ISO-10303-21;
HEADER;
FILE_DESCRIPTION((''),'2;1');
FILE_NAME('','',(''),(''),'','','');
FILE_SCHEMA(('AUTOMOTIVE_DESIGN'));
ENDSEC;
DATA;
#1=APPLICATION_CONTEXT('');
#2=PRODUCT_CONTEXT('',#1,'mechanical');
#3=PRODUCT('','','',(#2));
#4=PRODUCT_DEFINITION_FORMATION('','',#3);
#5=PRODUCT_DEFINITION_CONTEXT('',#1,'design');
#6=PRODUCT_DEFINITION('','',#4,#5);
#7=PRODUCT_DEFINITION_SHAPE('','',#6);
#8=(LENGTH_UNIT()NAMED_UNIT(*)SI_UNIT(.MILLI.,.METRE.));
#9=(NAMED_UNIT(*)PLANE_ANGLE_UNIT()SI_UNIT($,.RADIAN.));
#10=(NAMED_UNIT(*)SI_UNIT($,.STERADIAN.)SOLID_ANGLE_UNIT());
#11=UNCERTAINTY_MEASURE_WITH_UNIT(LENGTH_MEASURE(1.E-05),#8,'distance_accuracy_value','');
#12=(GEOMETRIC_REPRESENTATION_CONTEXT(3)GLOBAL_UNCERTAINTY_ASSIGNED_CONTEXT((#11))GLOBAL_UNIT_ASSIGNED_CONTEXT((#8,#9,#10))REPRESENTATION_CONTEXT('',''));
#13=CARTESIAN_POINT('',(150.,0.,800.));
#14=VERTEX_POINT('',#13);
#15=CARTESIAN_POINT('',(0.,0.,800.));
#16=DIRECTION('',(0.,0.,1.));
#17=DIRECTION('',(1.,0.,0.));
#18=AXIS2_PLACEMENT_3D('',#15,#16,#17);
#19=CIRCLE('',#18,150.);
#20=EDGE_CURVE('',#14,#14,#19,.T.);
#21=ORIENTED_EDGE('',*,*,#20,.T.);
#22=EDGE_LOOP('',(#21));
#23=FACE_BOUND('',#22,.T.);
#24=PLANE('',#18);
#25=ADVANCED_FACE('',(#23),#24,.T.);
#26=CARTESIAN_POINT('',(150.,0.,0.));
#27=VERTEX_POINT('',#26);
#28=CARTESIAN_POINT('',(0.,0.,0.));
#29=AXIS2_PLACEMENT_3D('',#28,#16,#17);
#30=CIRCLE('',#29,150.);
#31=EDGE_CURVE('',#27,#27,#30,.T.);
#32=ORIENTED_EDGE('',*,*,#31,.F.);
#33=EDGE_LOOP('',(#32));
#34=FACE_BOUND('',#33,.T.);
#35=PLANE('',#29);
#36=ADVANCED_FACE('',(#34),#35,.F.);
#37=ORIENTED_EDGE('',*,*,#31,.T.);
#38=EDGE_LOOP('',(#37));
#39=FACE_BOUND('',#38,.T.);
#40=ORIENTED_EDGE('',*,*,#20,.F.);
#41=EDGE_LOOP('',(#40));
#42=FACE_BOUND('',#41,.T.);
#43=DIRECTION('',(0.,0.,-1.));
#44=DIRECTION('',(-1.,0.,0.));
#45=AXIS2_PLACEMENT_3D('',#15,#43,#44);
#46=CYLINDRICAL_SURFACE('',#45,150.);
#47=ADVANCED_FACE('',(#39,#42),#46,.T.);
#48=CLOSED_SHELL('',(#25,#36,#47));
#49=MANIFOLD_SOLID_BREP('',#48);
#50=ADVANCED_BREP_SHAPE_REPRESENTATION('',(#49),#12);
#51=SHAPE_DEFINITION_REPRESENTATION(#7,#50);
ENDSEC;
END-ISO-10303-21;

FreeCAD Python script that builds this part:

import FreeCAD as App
import Part
import Sketcher

V = App.Vector
Q = App.Units.Quantity

doc = App.newDocument("Part")
body = doc.addObject("PartDesign::Body", "Body")

# Sketch on XY plane
sketch1 = body.newObject("Sketcher::SketchObject", "Sketch")
sketch1.AttachmentSupport = (doc.getObject("XY_Plane"), [""])
sketch1.MapMode = "FlatFace"
sketch1.addGeometry(Part.Circle(V(0, 0, 0), V(0, 0, 1), 150), False)
sketch1.addConstraint([
    Sketcher.Constraint("Coincident", 0, 3, -1, 1),
    Sketcher.Constraint("Diameter", 0, Q("300 mm")),
])
pad1 = body.newObject("PartDesign::Pad", "Pad")
pad1.Profile = sketch1
pad1.Length = 800

doc.recompute()
